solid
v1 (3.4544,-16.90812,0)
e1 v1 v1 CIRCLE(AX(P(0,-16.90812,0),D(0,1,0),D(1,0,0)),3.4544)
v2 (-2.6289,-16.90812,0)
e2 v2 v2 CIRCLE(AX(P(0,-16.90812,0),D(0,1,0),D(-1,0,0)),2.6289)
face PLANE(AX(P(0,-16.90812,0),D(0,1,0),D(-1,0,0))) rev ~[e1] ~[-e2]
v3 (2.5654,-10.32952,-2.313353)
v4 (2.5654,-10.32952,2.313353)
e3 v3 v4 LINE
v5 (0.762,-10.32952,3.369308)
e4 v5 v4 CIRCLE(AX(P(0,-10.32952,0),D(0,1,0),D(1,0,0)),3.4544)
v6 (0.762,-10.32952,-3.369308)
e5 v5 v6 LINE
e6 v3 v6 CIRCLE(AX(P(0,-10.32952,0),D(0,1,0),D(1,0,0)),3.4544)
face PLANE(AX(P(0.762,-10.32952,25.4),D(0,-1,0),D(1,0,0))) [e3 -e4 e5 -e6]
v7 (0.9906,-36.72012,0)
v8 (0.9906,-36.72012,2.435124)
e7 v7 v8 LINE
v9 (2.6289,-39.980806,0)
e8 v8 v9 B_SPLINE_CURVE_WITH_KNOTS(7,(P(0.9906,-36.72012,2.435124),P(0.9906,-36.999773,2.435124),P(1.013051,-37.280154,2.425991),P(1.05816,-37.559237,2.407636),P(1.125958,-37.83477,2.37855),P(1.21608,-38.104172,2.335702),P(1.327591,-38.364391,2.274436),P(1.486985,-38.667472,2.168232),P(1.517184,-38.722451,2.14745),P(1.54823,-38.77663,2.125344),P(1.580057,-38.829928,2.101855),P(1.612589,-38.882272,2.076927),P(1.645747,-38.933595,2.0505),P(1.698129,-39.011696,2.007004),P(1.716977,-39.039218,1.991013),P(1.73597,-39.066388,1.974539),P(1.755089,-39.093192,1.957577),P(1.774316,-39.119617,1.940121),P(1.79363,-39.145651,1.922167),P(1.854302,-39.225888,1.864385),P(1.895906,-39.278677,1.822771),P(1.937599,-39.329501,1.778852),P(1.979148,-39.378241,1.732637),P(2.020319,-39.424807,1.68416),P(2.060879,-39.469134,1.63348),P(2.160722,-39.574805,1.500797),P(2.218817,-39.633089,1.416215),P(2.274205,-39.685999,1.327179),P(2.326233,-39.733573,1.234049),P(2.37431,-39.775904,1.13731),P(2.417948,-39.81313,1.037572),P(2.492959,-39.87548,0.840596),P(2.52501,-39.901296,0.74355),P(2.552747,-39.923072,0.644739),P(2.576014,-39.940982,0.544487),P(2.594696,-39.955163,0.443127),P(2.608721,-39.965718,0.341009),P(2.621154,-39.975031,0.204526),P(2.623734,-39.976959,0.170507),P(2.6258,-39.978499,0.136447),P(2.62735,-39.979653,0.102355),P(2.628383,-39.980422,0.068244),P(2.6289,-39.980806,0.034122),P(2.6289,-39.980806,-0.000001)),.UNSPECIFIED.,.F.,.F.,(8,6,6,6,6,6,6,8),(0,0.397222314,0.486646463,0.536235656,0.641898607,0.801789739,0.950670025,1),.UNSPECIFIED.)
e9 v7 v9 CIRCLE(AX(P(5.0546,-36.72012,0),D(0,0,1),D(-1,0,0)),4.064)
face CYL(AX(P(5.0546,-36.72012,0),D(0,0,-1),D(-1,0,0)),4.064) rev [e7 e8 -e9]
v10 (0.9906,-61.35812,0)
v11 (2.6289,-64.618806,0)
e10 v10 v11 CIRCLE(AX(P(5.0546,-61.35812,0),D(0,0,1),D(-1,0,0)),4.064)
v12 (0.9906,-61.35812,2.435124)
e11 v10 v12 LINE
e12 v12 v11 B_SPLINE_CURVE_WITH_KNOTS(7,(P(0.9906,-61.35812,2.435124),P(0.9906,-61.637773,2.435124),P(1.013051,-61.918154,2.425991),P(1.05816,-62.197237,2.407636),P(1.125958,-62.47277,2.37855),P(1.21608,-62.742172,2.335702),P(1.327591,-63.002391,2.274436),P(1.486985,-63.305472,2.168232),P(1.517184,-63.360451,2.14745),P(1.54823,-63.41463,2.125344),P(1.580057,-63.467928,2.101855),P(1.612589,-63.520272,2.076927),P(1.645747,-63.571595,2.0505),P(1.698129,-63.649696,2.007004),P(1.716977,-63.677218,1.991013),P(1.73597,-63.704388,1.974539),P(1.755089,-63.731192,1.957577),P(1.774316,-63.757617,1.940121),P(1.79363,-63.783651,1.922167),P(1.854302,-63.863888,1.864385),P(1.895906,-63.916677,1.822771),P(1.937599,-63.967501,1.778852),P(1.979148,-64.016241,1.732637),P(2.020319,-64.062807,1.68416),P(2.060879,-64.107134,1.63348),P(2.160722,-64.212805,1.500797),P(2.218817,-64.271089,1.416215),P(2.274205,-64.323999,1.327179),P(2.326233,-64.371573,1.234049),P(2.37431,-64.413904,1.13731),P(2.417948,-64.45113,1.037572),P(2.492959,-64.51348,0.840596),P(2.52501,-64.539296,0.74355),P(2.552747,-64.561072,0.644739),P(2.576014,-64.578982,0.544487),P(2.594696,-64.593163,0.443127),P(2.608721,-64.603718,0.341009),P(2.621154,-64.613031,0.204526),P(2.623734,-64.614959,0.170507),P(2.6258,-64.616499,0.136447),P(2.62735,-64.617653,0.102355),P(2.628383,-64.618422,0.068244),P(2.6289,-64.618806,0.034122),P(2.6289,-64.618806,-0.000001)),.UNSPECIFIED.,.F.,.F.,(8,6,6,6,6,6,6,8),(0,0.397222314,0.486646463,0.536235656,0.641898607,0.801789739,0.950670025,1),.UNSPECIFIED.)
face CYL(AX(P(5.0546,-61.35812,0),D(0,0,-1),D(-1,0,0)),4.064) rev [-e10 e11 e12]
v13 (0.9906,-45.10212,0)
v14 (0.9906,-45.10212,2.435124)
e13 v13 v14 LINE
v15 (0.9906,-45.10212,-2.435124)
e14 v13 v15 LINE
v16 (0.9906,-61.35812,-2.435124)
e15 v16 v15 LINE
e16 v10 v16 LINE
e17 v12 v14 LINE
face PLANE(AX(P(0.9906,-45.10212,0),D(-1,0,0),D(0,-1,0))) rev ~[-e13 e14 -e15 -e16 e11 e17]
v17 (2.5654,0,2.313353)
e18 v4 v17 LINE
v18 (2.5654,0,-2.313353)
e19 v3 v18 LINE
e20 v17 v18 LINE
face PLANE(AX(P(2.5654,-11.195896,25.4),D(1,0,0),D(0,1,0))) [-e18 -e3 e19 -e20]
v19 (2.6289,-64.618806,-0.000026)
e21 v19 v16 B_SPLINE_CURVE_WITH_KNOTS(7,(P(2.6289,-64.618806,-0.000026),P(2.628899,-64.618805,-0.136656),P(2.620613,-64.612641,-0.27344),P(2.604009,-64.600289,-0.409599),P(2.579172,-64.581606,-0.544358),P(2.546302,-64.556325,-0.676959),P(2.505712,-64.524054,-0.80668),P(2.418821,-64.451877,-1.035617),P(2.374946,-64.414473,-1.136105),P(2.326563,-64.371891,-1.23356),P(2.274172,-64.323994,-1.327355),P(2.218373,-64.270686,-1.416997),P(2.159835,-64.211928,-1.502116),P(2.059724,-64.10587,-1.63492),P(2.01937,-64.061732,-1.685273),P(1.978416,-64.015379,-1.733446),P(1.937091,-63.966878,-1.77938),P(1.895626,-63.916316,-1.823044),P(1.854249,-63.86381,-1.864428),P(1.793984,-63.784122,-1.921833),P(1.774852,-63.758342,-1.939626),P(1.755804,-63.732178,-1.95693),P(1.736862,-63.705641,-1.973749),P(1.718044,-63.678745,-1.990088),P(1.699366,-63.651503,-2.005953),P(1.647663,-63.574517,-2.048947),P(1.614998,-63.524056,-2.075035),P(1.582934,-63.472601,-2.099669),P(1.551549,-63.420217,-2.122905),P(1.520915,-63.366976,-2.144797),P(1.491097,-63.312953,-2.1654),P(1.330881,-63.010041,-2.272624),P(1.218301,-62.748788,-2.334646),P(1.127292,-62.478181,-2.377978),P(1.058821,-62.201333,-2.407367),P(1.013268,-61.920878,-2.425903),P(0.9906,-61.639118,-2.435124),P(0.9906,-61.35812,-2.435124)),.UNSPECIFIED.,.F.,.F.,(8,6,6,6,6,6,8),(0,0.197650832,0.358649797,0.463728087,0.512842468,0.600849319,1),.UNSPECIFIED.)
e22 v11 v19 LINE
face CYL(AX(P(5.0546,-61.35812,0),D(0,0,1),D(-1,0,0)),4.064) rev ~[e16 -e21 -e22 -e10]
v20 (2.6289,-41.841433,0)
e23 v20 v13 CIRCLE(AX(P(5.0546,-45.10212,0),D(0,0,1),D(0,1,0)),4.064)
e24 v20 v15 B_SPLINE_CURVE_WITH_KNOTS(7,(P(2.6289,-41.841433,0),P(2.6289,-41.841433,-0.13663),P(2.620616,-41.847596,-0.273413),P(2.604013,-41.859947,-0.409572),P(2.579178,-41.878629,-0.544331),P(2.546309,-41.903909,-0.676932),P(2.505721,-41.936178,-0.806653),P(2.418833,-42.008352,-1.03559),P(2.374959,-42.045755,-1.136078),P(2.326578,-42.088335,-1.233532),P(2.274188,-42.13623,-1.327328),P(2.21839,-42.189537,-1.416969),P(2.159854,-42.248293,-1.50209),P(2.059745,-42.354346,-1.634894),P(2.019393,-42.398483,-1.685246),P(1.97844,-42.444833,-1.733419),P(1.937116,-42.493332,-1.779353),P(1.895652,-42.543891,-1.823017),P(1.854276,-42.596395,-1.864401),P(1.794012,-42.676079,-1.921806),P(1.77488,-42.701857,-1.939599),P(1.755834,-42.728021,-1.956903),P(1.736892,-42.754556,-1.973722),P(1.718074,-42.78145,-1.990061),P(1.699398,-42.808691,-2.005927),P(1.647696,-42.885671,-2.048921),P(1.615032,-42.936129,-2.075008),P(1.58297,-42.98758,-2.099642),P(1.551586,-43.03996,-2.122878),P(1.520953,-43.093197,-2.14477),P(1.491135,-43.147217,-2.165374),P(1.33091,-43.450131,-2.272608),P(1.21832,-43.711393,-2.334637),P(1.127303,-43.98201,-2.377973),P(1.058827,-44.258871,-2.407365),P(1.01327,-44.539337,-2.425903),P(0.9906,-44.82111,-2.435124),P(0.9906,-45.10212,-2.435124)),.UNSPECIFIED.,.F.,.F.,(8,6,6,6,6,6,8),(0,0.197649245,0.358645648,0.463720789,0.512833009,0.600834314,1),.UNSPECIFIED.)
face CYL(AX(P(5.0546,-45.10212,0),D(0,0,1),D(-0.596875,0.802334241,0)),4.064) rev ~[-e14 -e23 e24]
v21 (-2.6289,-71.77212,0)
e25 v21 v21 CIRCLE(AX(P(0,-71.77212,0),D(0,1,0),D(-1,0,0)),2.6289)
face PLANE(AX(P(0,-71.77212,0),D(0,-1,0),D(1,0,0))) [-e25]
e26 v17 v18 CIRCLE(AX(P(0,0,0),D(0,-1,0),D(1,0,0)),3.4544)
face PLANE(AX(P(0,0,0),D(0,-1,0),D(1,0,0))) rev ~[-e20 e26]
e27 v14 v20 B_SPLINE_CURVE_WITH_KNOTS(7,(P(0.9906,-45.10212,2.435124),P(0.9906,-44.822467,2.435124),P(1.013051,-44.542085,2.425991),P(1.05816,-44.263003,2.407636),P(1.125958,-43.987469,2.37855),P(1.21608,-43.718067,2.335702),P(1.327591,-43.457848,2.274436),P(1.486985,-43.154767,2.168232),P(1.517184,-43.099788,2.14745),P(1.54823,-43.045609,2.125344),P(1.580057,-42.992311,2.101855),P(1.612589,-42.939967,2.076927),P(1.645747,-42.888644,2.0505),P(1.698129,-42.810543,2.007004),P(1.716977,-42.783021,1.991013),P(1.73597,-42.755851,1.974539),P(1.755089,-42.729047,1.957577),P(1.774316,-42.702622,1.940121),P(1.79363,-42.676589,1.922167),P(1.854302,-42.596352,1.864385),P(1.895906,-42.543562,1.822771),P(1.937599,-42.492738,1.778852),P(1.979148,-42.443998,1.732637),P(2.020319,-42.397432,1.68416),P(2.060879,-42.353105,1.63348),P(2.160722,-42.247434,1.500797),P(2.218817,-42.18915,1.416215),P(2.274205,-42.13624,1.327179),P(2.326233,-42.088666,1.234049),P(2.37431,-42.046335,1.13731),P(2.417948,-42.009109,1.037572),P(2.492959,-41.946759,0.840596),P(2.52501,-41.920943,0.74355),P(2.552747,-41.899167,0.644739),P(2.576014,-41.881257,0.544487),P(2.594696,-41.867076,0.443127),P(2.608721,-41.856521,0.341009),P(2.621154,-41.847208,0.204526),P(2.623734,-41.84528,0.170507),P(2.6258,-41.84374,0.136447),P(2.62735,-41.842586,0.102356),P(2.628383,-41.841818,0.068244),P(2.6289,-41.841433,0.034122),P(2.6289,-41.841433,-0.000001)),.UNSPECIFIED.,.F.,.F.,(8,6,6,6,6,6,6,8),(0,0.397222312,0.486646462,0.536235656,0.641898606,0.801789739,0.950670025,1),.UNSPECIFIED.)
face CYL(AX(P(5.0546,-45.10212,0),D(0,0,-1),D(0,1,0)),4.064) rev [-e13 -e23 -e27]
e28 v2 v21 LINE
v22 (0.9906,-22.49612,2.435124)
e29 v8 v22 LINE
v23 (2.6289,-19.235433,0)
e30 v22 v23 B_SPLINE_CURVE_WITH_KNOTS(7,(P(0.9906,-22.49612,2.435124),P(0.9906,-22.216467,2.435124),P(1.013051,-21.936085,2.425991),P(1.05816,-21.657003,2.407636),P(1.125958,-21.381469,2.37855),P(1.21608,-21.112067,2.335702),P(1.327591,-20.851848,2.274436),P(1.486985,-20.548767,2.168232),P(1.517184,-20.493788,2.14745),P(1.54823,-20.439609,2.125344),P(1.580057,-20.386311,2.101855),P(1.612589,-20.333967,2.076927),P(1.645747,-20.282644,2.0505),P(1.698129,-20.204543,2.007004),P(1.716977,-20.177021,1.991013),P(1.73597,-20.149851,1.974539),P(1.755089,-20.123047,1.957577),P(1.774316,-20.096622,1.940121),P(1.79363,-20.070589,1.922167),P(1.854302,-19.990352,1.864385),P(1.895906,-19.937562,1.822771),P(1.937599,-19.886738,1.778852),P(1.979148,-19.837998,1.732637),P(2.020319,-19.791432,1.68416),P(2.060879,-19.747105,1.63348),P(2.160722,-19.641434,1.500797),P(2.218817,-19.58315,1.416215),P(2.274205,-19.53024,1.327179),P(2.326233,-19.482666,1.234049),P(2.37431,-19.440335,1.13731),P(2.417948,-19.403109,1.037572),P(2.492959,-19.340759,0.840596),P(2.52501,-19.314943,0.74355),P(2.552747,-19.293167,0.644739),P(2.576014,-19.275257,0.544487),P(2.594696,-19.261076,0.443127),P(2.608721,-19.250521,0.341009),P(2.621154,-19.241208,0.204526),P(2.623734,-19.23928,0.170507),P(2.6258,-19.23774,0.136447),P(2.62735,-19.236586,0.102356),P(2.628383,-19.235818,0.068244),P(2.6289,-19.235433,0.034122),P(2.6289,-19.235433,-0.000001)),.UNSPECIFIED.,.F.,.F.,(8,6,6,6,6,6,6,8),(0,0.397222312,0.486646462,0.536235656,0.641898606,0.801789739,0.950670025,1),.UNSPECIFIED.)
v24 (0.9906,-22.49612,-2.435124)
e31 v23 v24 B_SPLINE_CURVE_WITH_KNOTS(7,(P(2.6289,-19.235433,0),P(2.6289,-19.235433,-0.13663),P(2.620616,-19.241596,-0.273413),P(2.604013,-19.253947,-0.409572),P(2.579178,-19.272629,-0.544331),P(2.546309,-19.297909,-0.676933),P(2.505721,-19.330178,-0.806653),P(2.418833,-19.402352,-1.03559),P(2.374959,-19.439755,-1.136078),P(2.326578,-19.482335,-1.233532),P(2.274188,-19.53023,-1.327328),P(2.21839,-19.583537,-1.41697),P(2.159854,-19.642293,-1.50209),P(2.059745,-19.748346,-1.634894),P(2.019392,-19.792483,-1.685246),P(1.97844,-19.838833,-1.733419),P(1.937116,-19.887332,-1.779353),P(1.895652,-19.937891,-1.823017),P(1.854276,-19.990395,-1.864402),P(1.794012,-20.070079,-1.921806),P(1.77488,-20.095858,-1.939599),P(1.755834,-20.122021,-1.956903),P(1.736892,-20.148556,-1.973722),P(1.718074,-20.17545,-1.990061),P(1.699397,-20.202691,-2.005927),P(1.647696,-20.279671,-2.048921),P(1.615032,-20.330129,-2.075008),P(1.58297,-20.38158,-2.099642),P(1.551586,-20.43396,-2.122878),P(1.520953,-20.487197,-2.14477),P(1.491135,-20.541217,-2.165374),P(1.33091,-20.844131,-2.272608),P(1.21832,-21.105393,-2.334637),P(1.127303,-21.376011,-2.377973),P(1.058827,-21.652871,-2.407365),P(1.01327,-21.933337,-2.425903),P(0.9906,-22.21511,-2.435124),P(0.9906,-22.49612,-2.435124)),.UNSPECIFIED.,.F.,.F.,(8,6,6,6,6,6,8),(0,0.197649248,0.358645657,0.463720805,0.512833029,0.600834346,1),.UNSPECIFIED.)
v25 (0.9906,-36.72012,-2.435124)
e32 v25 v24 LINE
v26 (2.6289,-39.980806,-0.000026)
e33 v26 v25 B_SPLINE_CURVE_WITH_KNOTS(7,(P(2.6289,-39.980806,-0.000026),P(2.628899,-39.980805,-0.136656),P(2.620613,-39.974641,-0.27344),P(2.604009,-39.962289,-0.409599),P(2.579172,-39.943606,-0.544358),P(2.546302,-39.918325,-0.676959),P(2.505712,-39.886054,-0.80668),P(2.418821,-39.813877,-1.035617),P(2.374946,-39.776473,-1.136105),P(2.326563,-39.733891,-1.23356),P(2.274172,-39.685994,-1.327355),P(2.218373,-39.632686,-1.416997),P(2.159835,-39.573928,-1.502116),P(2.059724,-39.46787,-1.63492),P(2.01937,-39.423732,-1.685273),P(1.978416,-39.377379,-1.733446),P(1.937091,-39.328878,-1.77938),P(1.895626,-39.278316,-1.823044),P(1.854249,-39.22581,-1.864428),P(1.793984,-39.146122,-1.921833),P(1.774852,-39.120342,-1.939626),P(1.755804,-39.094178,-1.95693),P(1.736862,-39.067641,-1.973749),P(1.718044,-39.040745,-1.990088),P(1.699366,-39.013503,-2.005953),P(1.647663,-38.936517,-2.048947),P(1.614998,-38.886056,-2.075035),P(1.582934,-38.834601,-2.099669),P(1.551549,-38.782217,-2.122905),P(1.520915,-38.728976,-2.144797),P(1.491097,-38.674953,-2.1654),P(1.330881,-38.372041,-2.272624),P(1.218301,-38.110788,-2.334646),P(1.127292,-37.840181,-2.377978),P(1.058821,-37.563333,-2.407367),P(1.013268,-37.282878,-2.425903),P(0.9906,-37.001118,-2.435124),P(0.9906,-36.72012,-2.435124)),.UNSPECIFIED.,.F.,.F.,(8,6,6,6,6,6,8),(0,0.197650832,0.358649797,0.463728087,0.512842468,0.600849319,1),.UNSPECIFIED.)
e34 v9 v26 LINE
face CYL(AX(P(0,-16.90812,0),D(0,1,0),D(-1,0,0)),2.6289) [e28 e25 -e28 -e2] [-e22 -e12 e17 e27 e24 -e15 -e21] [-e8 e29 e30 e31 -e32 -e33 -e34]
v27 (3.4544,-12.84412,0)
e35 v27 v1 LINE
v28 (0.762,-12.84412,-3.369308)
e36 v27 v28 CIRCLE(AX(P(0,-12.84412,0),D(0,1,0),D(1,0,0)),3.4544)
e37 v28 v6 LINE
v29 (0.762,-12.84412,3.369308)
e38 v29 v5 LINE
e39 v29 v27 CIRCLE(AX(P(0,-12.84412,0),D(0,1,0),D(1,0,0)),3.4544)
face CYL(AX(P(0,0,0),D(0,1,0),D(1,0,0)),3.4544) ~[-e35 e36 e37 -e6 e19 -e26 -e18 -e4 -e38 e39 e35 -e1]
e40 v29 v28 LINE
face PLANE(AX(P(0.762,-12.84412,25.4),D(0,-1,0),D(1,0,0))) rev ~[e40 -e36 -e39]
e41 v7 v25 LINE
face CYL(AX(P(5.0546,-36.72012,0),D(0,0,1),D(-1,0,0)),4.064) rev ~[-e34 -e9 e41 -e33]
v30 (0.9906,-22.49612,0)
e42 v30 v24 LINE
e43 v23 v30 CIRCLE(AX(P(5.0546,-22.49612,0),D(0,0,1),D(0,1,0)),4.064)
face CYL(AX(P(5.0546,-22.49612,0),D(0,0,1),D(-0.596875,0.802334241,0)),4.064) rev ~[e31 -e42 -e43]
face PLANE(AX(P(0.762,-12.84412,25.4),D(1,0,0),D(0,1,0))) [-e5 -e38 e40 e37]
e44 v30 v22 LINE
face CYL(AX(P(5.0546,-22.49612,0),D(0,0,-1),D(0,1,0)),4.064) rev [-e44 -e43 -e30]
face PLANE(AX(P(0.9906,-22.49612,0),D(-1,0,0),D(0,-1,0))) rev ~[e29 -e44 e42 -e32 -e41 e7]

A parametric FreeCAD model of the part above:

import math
import FreeCAD as App
import Part
import Sketcher
from FreeCAD import Vector
Q = App.Units.Quantity


def add_polygon(sketch, points):
    """Adds a closed chain of lines whose ends are joined by coincident constraints."""
    first, n = sketch.GeometryCount, len(points)
    for a, b in zip(points, points[1:] + points[:1]):
        sketch.addGeometry(Part.LineSegment(App.Vector(*a, 0), App.Vector(*b, 0)), False)
    for i in range(n):
        sketch.addConstraint(Sketcher.Constraint("Coincident", first + i, 2, first + (i + 1) % n, 1))

doc = App.newDocument("Part")
body = doc.addObject("PartDesign::Body", "Body")

sketch1 = doc.addObject("Sketcher::SketchObject", "Sketch")
body.addObject(sketch1)
sketch1.AttachmentSupport = (doc.XZ_Plane, [""])
sketch1.MapMode = "FlatFace"
sketch1.addGeometry(Part.Circle(Vector(0, 0, 0), Vector(0, 0, 1), 3.5), False)
sketch1.addConstraint([
    Sketcher.Constraint("Coincident", 0, 3, -1, 1),
    Sketcher.Constraint("Diameter", 0, Q("0.272 in")),
])
pad1 = doc.addObject("PartDesign::Pad", "Pad")
body.addObject(pad1)
pad1.Profile = sketch1
pad1.Length = 71.77212

sketch2 = doc.addObject("Sketcher::SketchObject", "Sketch001")
body.addObject(sketch2)
sketch2.AttachmentSupport = (doc.XY_Plane, [""])
sketch2.MapMode = "FlatFace"
sketch2.AttachmentOffset = App.Placement(Vector(0, 0, 1 * 25.4), App.Rotation())
add_polygon(sketch2, [(0.8, -10.3), (0.8, -12.8), (5.6, -12.8), (5.6, -10.3)])
sketch2.addConstraint([
    Sketcher.Constraint("Vertical", 0),
    Sketcher.Constraint("Horizontal", 1),
    Sketcher.Constraint("Vertical", 2),
    Sketcher.Constraint("Horizontal", 3),
    Sketcher.Constraint("DistanceY", 0, 2, 0, 1, Q("0.099 in")),
    Sketcher.Constraint("DistanceX", -1, 1, 0, 2, Q("0.03 in")),
    Sketcher.Constraint("DistanceX", 1, 1, 1, 2, 4.846836),
    Sketcher.Constraint("DistanceY", 0, 2, -1, 1, 12.84412),
])
pocket1 = doc.addObject("PartDesign::Pocket", "Pocket")
body.addObject(pocket1)
pocket1.Profile = sketch2
pocket1.Length = Q("1.57 in")

sketch3 = doc.addObject("Sketcher::SketchObject", "Sketch002")
body.addObject(sketch3)
sketch3.AttachmentSupport = (doc.XY_Plane, [""])
sketch3.MapMode = "FlatFace"
sketch3.AttachmentOffset = App.Placement(Vector(0, 0, 1 * 25.4), App.Rotation())
add_polygon(sketch3, [(2.6, 0), (2.6, -11.2), (5.5, -11.2), (5.5, 0)])
sketch3.addConstraint([
    Sketcher.Constraint("Vertical", 0),
    Sketcher.Constraint("Horizontal", 1),
    Sketcher.Constraint("Vertical", 2),
    Sketcher.Constraint("Horizontal", 3),
    Sketcher.Constraint("PointOnObject", 2, 2, -1),
    Sketcher.Constraint("DistanceX", -1, 1, 0, 2, Q("0.101 in")),
    Sketcher.Constraint("DistanceX", 1, 1, 1, 2, 2.965197),
    Sketcher.Constraint("DistanceY", 0, 2, 0, 1, 11.195896),
])
pocket2 = doc.addObject("PartDesign::Pocket", "Pocket001")
body.addObject(pocket2)
pocket2.Profile = sketch3
pocket2.Length = Q("2.23 in")

sketch4 = doc.addObject("Sketcher::SketchObject", "Sketch003")
body.addObject(sketch4)
sketch4.AttachmentSupport = (doc.XZ_Plane, [""])
sketch4.MapMode = "FlatFace"
sketch4.AttachmentOffset = App.Placement(Vector(0, 0, 16.90812), App.Rotation())
sketch4.addGeometry([
    Part.Circle(Vector(0, 0, 0), Vector(0, 0, 1), 3.5),
    Part.Circle(Vector(0, 0, 0), Vector(0, 0, 1), 2.6),
], False)
sketch4.addConstraint([
    Sketcher.Constraint("Coincident", 0, 3, -1, 1),
    Sketcher.Constraint("Coincident", 1, 3, -1, 1),
    Sketcher.Constraint("Diameter", 0, Q("0.272 in")),
    Sketcher.Constraint("Diameter", 1, Q("0.207 in")),
])
pocket3 = doc.addObject("PartDesign::Pocket", "Pocket002")
body.addObject(pocket3)
pocket3.Profile = sketch4
pocket3.Length = Q("2.3 in")
pocket3.Reversed = True

sketch5 = doc.addObject("Sketcher::SketchObject", "Sketch004")
body.addObject(sketch5)
sketch5.AttachmentSupport = (doc.XY_Plane, [""])
sketch5.MapMode = "FlatFace"
sketch5.addGeometry([
    Part.ArcOfCircle(Part.Circle(Vector(5.1, -45.1, 0), Vector(0, 0, 1), 4.1), math.radians(90), math.radians(180)),
    Part.LineSegment(Vector(1, -45.1, 0), Vector(1, -61.4, 0)),
    Part.ArcOfCircle(Part.Circle(Vector(5.1, -61.4, 0), Vector(0, 0, 1), 4.1), math.radians(180), math.radians(270)),
    Part.LineSegment(Vector(5.1, -65.4, 0), Vector(5.1, -41, 0)),
    Part.LineSegment(Vector(5.1, -40.8, 0), Vector(5.1, -18.4, 0)),
    Part.ArcOfCircle(Part.Circle(Vector(5.1, -22.5, 0), Vector(0, 0, 1), 4.1), math.radians(90), math.radians(180)),
    Part.LineSegment(Vector(1, -22.5, 0), Vector(1, -36.7, 0)),
    Part.ArcOfCircle(Part.Circle(Vector(5.1, -36.7, 0), Vector(0, 0, 1), 4.1), math.radians(180), math.radians(270)),
], False)
sketch5.addConstraint([
    Sketcher.Constraint("Tangent", 0, 2, 1, 1),
    Sketcher.Constraint("Tangent", 1, 2, 2, 1),
    Sketcher.Constraint("Coincident", 2, 2, 3, 1),
    Sketcher.Constraint("Coincident", 3, 2, 0, 1),
    Sketcher.Constraint("Coincident", 4, 2, 5, 1),
    Sketcher.Constraint("Tangent", 5, 2, 6, 1),
    Sketcher.Constraint("Tangent", 6, 2, 7, 1),
    Sketcher.Constraint("Coincident", 7, 2, 4, 1),
    Sketcher.Constraint("Vertical", 1),
    Sketcher.Constraint("Vertical", 3),
    Sketcher.Constraint("Vertical", 4),
    Sketcher.Constraint("Vertical", 6),
    Sketcher.Constraint("Equal", 0, 2),
    Sketcher.Constraint("Equal", 2, 5),
    Sketcher.Constraint("Equal", 5, 7),
    Sketcher.Constraint("Vertical", 2, 3, 5, 3),
    Sketcher.Constraint("Vertical", 7, 3, 2, 2),
    Sketcher.Constraint("Vertical", 3, 2, 4, 2),
    Sketcher.Constraint("Radius", 0, Q("0.16 in")),
    Sketcher.Constraint("DistanceY", 1, 2, 1, 1, Q("0.64 in")),
    Sketcher.Constraint("DistanceY", 4, 1, 4, 2, Q("0.88 in")),
    Sketcher.Constraint("DistanceY", 0, 3, 5, 3, Q("0.89 in")),
    Sketcher.Constraint("DistanceX", -1, 1, 0, 3, Q("0.199 in")),
    Sketcher.Constraint("DistanceY", 0, 3, -1, 1, 45.10212),
])
pocket4 = doc.addObject("PartDesign::Pocket", "Pocket003")
body.addObject(pocket4)
pocket4.Profile = sketch5
pocket4.Length = Q("1 in")
pocket4.Reversed = True

sketch6 = doc.addObject("Sketcher::SketchObject", "Sketch005")
body.addObject(sketch6)
sketch6.AttachmentSupport = (doc.XY_Plane, [""])
sketch6.MapMode = "FlatFace"
sketch6.addGeometry([
    Part.ArcOfCircle(Part.Circle(Vector(5.1, -45.1, 0), Vector(0, 0, 1), 4.1), math.radians(127), math.radians(180)),
    Part.LineSegment(Vector(1, -45.1, 0), Vector(1, -61.4, 0)),
    Part.ArcOfCircle(Part.Circle(Vector(5.1, -61.4, 0), Vector(0, 0, 1), 4.1), math.radians(180), math.radians(233)),
    Part.LineSegment(Vector(2.6, -64.6, 0), Vector(2.6, -41.8, 0)),
], False)
sketch6.addConstraint([
    Sketcher.Constraint("Tangent", 0, 2, 1, 1),
    Sketcher.Constraint("Tangent", 1, 2, 2, 1),
    Sketcher.Constraint("Coincident", 2, 2, 3, 1),
    Sketcher.Constraint("Coincident", 3, 2, 0, 1),
    Sketcher.Constraint("Vertical", 1),
    Sketcher.Constraint("Vertical", 3),
    Sketcher.Constraint("Equal", 0, 2),
    Sketcher.Constraint("Radius", 0, Q("0.16 in")),
    Sketcher.Constraint("DistanceY", 1, 2, 1, 1, Q("0.64 in")),
    Sketcher.Constraint("DistanceX", -1, 1, 0, 3, Q("0.199 in")),
    Sketcher.Constraint("DistanceX", -1, 1, 2, 2, Q("0.1035 in")),
    Sketcher.Constraint("DistanceY", 0, 3, -1, 1, 45.10212),
])
pocket5 = doc.addObject("PartDesign::Pocket", "Pocket004")
body.addObject(pocket5)
pocket5.Profile = sketch6
pocket5.Length = Q("1 in")

sketch7 = doc.addObject("Sketcher::SketchObject", "Sketch006")
body.addObject(sketch7)
sketch7.AttachmentSupport = (doc.XY_Plane, [""])
sketch7.MapMode = "FlatFace"
sketch7.addGeometry([
    Part.ArcOfCircle(Part.Circle(Vector(5.1, -22.5, 0), Vector(0, 0, 1), 4.1), math.radians(127), math.radians(180)),
    Part.LineSegment(Vector(1, -22.5, 0), Vector(1, -36.7, 0)),
    Part.ArcOfCircle(Part.Circle(Vector(5.1, -36.7, 0), Vector(0, 0, 1), 4.1), math.radians(180), math.radians(233)),
    Part.LineSegment(Vector(2.6, -40, 0), Vector(2.6, -19.2, 0)),
], False)
sketch7.addConstraint([
    Sketcher.Constraint("Tangent", 0, 2, 1, 1),
    Sketcher.Constraint("Tangent", 1, 2, 2, 1),
    Sketcher.Constraint("Coincident", 2, 2, 3, 1),
    Sketcher.Constraint("Coincident", 3, 2, 0, 1),
    Sketcher.Constraint("Vertical", 1),
    Sketcher.Constraint("Vertical", 3),
    Sketcher.Constraint("Equal", 0, 2),
    Sketcher.Constraint("Radius", 0, Q("0.16 in")),
    Sketcher.Constraint("DistanceY", 1, 2, 1, 1, Q("0.56 in")),
    Sketcher.Constraint("DistanceX", -1, 1, 0, 3, Q("0.199 in")),
    Sketcher.Constraint("DistanceX", -1, 1, 2, 2, Q("0.1035 in")),
    Sketcher.Constraint("DistanceY", 0, 3, -1, 1, 22.49612),
])
pocket6 = doc.addObject("PartDesign::Pocket", "Pocket005")
body.addObject(pocket6)
pocket6.Profile = sketch7
pocket6.Length = Q("1 in")

doc.recompute()
